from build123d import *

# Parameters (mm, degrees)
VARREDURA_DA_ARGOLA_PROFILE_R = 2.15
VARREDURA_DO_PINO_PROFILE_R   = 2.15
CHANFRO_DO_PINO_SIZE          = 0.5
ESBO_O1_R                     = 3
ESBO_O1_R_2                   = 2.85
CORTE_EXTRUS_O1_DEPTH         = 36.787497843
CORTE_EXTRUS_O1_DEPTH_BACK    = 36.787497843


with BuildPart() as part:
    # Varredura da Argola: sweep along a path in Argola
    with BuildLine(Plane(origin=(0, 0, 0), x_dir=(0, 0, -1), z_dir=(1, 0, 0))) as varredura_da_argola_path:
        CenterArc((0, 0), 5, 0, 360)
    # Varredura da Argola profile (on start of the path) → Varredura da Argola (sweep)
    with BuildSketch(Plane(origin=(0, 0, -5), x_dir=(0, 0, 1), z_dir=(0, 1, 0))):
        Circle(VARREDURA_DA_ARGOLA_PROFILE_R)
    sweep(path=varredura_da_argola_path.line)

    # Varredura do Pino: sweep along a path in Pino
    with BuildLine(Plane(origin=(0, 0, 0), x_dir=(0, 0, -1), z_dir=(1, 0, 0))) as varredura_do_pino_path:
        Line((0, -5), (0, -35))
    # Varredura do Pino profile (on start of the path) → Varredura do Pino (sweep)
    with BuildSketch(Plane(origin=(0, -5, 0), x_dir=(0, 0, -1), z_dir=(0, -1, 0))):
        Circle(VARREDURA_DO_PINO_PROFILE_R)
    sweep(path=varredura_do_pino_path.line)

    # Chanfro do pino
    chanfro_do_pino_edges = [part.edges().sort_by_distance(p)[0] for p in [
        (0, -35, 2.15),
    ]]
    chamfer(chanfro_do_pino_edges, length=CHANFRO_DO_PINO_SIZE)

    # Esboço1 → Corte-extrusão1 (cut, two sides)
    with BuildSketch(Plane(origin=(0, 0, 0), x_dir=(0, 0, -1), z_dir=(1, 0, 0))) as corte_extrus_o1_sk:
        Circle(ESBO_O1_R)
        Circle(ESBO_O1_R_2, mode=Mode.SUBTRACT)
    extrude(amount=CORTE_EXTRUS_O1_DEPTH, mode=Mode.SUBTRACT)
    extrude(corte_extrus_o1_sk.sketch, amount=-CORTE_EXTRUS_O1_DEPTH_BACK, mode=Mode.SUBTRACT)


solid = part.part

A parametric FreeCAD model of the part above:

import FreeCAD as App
import Part
import Sketcher

V = App.Vector


def edges_at(feature, points):
    """Names of the edges that pass closest to the given points."""
    edges = feature.Shape.Edges
    near = lambda p: min(range(len(edges)), key=lambda i: edges[i].distToShape(Part.Vertex(*p))[0])
    return sorted({f"Edge{near(p) + 1}" for p in points})

doc = App.newDocument("Part")
body = doc.addObject("PartDesign::Body", "Body")

sketch1 = body.newObject("Sketcher::SketchObject", "Sketch")
sketch1.AttachmentSupport = (doc.getObject("XZ_Plane"), [""])
sketch1.MapMode = "FlatFace"
sketch1.addGeometry(Part.Circle(V(0, -5, 0), V(0, 0, 1), 2.1), False)
sketch1.addConstraint([
    Sketcher.Constraint("PointOnObject", 0, 3, -2),
    Sketcher.Constraint("Diameter", 0, 4.3),
    Sketcher.Constraint("DistanceY", 0, 3, -1, 1, 5.0),
])

sketch2 = body.newObject("Sketcher::SketchObject", "Sketch001")
sketch2.AttachmentSupport = (doc.getObject("YZ_Plane"), [""])
sketch2.MapMode = "FlatFace"
sketch2.addGeometry(Part.Circle(V(0, 0, 0), V(0, 0, 1), 5), False)
sketch2.addConstraint([
    Sketcher.Constraint("Coincident", 0, 3, -1, 1),
    Sketcher.Constraint("Diameter", 0, 10.0),
])
doc.recompute()

additivepipe = body.newObject("PartDesign::AdditivePipe", "AdditivePipe")
additivepipe.Profile = sketch1
additivepipe.Spine = (sketch2, ["Edge1"])

sketch3 = body.newObject("Sketcher::SketchObject", "Sketch002")
sketch3.AttachmentSupport = (doc.getObject("XZ_Plane"), [""])
sketch3.MapMode = "FlatFace"
sketch3.AttachmentOffset = App.Placement(V(0, 0, 5), App.Rotation())
sketch3.addGeometry(Part.Circle(V(0, 0, 0), V(0, 0, 1), 2.1), False)
sketch3.addConstraint([
    Sketcher.Constraint("Coincident", 0, 3, -1, 1),
    Sketcher.Constraint("Diameter", 0, 4.3),
])

sketch4 = body.newObject("Sketcher::SketchObject", "Sketch003")
sketch4.AttachmentSupport = (doc.getObject("XY_Plane"), [""])
sketch4.MapMode = "FlatFace"
sketch4.addGeometry(Part.LineSegment(V(0, -5, 0), V(0, -35, 0)), False)
sketch4.addConstraint([
    Sketcher.Constraint("Vertical", 0),
    Sketcher.Constraint("PointOnObject", 0, 1, -2),
    Sketcher.Constraint("DistanceY", 0, 2, 0, 1, 30.0),
    Sketcher.Constraint("DistanceY", 0, 1, -1, 1, 5.0),
])
doc.recompute()

additivepipe2 = body.newObject("PartDesign::AdditivePipe", "AdditivePipe001")
additivepipe2.Profile = sketch3
additivepipe2.Spine = (sketch4, ["Edge1"])
doc.recompute()

chamfer = body.newObject("PartDesign::Chamfer", "Chamfer")
chamfer.Base = (additivepipe2, edges_at(additivepipe2, [(0, -35, 2.15)]))
chamfer.Size = 0.5

sketch5 = body.newObject("Sketcher::SketchObject", "Sketch004")
sketch5.AttachmentSupport = (doc.getObject("YZ_Plane"), [""])
sketch5.MapMode = "FlatFace"
sketch5.addGeometry([
    Part.Circle(V(0, 0, 0), V(0, 0, 1), 3),
    Part.Circle(V(0, 0, 0), V(0, 0, 1), 2.9),
], False)
sketch5.addConstraint([
    Sketcher.Constraint("Coincident", 0, 3, -1, 1),
    Sketcher.Constraint("Coincident", 1, 3, -1, 1),
    Sketcher.Constraint("Diameter", 0, 6.0),
    Sketcher.Constraint("Diameter", 1, 5.7),
])
pocket1 = body.newObject("PartDesign::Pocket", "Pocket")
pocket1.Profile = sketch5
pocket1.Type = "ThroughAll"
pocket1.Midplane = True

doc.recompute()
